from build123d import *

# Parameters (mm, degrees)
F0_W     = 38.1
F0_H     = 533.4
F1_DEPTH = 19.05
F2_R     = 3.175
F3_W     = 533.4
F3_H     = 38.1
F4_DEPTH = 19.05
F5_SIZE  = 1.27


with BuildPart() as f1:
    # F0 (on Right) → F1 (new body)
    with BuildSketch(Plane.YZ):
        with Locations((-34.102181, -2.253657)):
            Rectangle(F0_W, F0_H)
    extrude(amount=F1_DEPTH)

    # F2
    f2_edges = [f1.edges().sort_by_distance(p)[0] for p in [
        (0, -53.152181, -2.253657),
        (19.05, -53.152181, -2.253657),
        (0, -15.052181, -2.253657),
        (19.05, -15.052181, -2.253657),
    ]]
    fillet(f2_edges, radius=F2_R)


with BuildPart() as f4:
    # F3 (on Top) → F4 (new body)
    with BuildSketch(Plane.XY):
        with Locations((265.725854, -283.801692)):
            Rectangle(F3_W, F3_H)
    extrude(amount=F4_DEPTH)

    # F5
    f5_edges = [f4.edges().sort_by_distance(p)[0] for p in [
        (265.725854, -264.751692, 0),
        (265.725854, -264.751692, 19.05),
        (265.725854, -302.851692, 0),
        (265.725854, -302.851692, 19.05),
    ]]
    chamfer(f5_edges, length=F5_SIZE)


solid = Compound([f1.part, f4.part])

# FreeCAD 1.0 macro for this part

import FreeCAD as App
import Part
import Sketcher

V = App.Vector
Q = App.Units.Quantity


def edges_at(feature, points):
    """Names of the edges that pass closest to the given points."""
    edges = feature.Shape.Edges
    near = lambda p: min(range(len(edges)), key=lambda i: edges[i].distToShape(Part.Vertex(*p))[0])
    return sorted({f"Edge{near(p) + 1}" for p in points})


def add_polygon(sketch, points):
    """Adds a closed chain of lines whose ends are joined by coincident constraints."""
    first, n = sketch.GeometryCount, len(points)
    for a, b in zip(points, points[1:] + points[:1]):
        sketch.addGeometry(Part.LineSegment(App.Vector(*a, 0), App.Vector(*b, 0)), False)
    for i in range(n):
        sketch.addConstraint(Sketcher.Constraint("Coincident", first + i, 2, first + (i + 1) % n, 1))

doc = App.newDocument("Part")
body = doc.addObject("PartDesign::Body", "Body")

# Sketch on YZ plane
sketch1 = body.newObject("Sketcher::SketchObject", "Sketch")
sketch1.AttachmentSupport = (doc.getObject("YZ_Plane"), [""])
sketch1.MapMode = "FlatFace"
add_polygon(sketch1, [(-53, 264), (-53, -269), (-15, -269), (-15, 264)])  # lines 0-3
sketch1.addConstraint(Sketcher.Constraint("Vertical", 0))
sketch1.addConstraint(Sketcher.Constraint("Horizontal", 1))
sketch1.addConstraint(Sketcher.Constraint("Vertical", 2))
sketch1.addConstraint(Sketcher.Constraint("Horizontal", 3))
sketch1.addConstraint(Sketcher.Constraint("DistanceY", 0, 2, 0, 1, Q("21 in")))
sketch1.addConstraint(Sketcher.Constraint("DistanceX", 1, 1, 1, 2, Q("1.5 in")))
sketch1.addConstraint(Sketcher.Constraint("DistanceX", 0, 2, -1, 1, Q("53.152181 mm")))
sketch1.addConstraint(Sketcher.Constraint("DistanceY", 0, 2, -1, 1, Q("268.953657 mm")))
pad1 = body.newObject("PartDesign::Pad", "Pad")
pad1.Profile = sketch1
pad1.Length = Q("0.75 in")
doc.recompute()

fillet = body.newObject("PartDesign::Fillet", "Fillet")
fillet.Base = (pad1, edges_at(pad1, [
    (0, -53.152, -2.254),
    (19.05, -53.152, -2.254),
    (0, -15.052, -2.254),
    (19.05, -15.052, -2.254),
]))
fillet.Radius = Q("0.125 in")
body2 = doc.addObject("PartDesign::Body", "Body001")

# Sketch on XY plane
sketch2 = body2.newObject("Sketcher::SketchObject", "Sketch001")
sketch2.AttachmentSupport = (doc.getObject("XY_Plane001"), [""])
sketch2.MapMode = "FlatFace"
add_polygon(sketch2, [(-1, -265), (-1, -303), (532, -303), (532, -265)])  # lines 0-3
sketch2.addConstraint(Sketcher.Constraint("Vertical", 0))
sketch2.addConstraint(Sketcher.Constraint("Horizontal", 1))
sketch2.addConstraint(Sketcher.Constraint("Vertical", 2))
sketch2.addConstraint(Sketcher.Constraint("Horizontal", 3))
sketch2.addConstraint(Sketcher.Constraint("DistanceX", 1, 1, 1, 2, Q("21 in")))
sketch2.addConstraint(Sketcher.Constraint("DistanceY", 0, 2, 0, 1, Q("1.5 in")))
sketch2.addConstraint(Sketcher.Constraint("DistanceY", 0, 2, -1, 1, Q("302.851692 mm")))
sketch2.addConstraint(Sketcher.Constraint("DistanceX", 0, 2, -1, 1, Q("0.974146 mm")))
pad2 = body2.newObject("PartDesign::Pad", "Pad001")
pad2.Profile = sketch2
pad2.Length = Q("0.75 in")
doc.recompute()

chamfer = body2.newObject("PartDesign::Chamfer", "Chamfer")
chamfer.Base = (pad2, edges_at(pad2, [
    (265.726, -264.752, 0),
    (265.726, -264.752, 19.05),
    (265.726, -302.852, 0),
    (265.726, -302.852, 19.05),
]))
chamfer.Size = Q("0.05 in")

doc.recompute()
